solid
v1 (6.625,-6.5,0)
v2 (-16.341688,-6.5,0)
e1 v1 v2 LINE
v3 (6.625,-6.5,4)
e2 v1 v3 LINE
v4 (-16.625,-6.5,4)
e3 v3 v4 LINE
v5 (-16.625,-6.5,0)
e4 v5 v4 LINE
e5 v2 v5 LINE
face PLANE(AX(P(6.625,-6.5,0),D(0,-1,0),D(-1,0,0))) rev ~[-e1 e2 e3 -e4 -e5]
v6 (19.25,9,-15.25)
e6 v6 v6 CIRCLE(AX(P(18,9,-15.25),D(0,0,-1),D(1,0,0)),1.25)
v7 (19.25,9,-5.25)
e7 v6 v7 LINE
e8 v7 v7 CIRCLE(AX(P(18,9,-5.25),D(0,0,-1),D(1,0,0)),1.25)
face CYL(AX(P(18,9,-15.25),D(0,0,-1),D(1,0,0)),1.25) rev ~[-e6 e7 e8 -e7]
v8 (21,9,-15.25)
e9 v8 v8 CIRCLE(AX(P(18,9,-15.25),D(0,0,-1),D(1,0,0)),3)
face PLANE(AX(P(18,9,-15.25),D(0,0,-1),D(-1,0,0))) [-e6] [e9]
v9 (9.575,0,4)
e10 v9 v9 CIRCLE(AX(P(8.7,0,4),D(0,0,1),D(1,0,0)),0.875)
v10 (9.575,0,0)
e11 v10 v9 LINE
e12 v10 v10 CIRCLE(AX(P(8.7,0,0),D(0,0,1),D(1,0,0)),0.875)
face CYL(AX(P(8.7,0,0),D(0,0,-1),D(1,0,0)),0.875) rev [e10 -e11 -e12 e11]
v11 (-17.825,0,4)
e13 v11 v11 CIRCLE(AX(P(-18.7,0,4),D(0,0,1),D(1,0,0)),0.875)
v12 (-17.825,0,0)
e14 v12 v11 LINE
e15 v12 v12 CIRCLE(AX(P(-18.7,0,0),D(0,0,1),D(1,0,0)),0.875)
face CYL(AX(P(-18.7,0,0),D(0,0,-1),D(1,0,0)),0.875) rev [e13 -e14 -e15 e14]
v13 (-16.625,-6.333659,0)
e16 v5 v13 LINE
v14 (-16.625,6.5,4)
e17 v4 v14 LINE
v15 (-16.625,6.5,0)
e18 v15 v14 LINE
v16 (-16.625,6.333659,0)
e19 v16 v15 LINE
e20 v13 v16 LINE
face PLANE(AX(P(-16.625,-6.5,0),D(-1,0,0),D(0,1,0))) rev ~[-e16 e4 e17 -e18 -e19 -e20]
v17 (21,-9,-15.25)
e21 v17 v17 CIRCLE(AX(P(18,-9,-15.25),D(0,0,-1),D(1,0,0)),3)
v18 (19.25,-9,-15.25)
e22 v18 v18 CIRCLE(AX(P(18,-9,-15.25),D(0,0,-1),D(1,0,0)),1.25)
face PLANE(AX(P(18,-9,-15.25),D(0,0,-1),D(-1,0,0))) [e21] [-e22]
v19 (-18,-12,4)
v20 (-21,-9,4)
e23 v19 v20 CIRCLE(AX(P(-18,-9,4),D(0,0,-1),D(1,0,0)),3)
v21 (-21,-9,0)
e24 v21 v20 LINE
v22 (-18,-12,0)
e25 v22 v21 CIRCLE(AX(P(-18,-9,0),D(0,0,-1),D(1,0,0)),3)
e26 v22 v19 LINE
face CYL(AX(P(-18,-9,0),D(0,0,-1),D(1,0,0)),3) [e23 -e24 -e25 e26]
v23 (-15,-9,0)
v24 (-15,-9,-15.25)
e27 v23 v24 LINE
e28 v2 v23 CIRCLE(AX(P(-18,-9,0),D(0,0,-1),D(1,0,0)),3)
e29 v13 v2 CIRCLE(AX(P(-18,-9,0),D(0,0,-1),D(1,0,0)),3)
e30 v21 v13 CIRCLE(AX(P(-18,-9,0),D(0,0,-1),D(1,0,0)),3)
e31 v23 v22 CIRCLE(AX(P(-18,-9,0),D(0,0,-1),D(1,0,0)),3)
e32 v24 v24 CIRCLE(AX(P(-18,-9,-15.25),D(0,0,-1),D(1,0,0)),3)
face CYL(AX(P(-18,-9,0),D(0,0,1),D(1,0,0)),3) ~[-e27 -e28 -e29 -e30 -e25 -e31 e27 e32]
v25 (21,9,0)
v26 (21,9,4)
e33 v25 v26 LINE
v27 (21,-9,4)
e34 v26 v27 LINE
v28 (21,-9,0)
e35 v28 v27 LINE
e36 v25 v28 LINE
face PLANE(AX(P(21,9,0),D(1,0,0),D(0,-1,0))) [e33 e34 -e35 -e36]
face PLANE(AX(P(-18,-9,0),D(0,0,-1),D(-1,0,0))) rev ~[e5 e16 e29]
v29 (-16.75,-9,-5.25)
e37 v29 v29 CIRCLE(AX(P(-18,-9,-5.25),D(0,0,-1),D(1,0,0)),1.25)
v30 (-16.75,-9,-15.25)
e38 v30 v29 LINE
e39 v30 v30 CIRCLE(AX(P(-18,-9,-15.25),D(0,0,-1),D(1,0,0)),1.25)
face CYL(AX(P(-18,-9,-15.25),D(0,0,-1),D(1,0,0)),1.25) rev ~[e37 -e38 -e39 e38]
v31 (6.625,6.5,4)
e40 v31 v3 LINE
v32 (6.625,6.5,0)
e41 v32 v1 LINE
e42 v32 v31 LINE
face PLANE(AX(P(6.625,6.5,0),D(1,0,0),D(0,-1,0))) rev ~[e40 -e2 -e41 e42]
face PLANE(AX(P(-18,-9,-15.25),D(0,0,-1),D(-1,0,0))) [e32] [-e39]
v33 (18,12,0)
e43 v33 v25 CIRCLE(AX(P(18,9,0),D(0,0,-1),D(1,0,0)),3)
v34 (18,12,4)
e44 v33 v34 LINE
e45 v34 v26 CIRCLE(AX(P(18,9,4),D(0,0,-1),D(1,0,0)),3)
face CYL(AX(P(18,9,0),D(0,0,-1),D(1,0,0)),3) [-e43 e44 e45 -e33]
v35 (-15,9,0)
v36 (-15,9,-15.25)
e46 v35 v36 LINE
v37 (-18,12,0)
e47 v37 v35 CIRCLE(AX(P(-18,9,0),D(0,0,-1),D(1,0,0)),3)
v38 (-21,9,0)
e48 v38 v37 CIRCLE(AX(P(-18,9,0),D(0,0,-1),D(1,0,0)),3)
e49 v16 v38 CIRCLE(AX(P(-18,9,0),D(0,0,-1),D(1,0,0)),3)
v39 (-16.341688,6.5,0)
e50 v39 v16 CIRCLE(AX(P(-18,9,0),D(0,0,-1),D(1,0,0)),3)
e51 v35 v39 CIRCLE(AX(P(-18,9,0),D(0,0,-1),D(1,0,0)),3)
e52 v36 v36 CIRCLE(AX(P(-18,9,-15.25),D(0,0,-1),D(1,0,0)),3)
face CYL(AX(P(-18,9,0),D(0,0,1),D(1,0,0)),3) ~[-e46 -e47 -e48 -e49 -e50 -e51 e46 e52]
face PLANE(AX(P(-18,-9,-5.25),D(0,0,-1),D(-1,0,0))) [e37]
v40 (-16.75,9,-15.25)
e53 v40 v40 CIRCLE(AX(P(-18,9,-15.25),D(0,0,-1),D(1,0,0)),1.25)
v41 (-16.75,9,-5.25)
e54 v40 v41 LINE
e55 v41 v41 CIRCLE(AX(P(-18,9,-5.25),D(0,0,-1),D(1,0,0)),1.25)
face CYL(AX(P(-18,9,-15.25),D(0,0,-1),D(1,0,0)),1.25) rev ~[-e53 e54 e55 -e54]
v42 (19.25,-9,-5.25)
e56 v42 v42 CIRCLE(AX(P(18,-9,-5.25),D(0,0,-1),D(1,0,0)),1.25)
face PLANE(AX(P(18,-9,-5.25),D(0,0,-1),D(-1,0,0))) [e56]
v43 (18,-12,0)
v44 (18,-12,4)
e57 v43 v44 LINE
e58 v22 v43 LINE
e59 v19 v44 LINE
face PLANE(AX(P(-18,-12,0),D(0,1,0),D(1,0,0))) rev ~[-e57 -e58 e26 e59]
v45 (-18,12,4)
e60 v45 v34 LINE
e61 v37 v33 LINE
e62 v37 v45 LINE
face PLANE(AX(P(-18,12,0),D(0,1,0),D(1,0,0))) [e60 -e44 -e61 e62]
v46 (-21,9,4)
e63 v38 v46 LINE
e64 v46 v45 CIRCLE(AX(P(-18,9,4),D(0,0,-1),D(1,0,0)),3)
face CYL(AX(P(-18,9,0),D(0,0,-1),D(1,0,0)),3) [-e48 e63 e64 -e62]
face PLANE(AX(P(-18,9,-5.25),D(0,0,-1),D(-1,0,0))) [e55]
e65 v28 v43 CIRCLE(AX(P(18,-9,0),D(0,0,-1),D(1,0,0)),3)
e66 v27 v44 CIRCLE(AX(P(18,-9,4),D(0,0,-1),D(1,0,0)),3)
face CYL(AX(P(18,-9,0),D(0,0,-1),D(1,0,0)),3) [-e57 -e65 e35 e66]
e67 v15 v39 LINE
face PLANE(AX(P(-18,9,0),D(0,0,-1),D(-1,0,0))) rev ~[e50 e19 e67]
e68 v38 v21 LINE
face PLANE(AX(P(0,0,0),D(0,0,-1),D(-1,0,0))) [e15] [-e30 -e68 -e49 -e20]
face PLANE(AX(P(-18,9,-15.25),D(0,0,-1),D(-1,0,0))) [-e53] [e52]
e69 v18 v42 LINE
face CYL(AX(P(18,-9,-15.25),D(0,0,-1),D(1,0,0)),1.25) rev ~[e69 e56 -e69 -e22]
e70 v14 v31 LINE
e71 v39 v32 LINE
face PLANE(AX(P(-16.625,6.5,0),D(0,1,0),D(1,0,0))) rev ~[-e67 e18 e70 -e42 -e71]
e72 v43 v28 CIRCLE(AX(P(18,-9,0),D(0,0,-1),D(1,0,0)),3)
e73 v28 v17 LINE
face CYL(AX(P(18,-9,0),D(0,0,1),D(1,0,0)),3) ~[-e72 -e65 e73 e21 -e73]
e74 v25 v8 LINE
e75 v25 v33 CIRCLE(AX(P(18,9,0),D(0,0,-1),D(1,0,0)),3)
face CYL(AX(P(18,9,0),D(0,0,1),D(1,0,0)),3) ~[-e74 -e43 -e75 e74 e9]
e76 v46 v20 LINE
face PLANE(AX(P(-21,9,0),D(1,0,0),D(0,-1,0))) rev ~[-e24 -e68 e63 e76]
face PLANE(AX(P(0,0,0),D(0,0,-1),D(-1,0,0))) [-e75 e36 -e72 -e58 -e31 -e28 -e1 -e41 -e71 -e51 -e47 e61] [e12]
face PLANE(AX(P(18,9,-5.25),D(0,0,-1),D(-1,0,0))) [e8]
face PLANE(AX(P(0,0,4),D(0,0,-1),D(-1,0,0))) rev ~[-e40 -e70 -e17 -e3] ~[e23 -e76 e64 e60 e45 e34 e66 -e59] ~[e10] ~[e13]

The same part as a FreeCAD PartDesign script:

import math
import FreeCAD as App
import Part
import Sketcher

V = App.Vector
Q = App.Units.Quantity


def add_polygon(sketch, points):
    """Adds a closed chain of lines whose ends are joined by coincident constraints."""
    first, n = sketch.GeometryCount, len(points)
    for a, b in zip(points, points[1:] + points[:1]):
        sketch.addGeometry(Part.LineSegment(App.Vector(*a, 0), App.Vector(*b, 0)), False)
    for i in range(n):
        sketch.addConstraint(Sketcher.Constraint("Coincident", first + i, 2, first + (i + 1) % n, 1))

doc = App.newDocument("Part")
params = doc.addObject("Spreadsheet::Sheet", "Params")
for row, (alias, value) in enumerate([
    ("sketch1_radius", "3 mm"),
    ("sketch1_diameter", "1.75 mm"),
    ("sketch1_width", "36 mm"),
    ("sketch1_height", "18 mm"),
    ("sketch1_height2", "13 mm"),
    ("pad1_length", "4 mm"),
    ("sketch2_diameter", "6 mm"),
    ("pad2_length", "15.25 mm"),
    ("sketch3_diameter", "2.5 mm"),
    ("pocket1_length", "10 mm"),
], start=1):
    params.set(f"A{row}", alias)
    params.set(f"B{row}", "=" + value)
    params.setAlias(f"B{row}", alias)

body = doc.addObject("PartDesign::Body", "Body")

sketch1 = doc.addObject("Sketcher::SketchObject", "Sketch")
body.addObject(sketch1)
sketch1.AttachmentSupport = (doc.XY_Plane, [""])
sketch1.MapMode = "FlatFace"
sketch1.addGeometry(Part.LineSegment(V(18, 12, 0), V(-18, 12, 0)), False)
sketch1.addGeometry(Part.ArcOfCircle(Part.Circle(V(-18, 9, 0), V(0, 0, 1), 3), math.radians(90), math.radians(180)), False)
sketch1.addGeometry(Part.LineSegment(V(-21, 9, 0), V(-21, -9, 0)), False)
sketch1.addGeometry(Part.ArcOfCircle(Part.Circle(V(-18, -9, 0), V(0, 0, 1), 3), math.radians(180), math.radians(270)), False)
sketch1.addGeometry(Part.LineSegment(V(-18, -12, 0), V(18, -12, 0)), False)
sketch1.addGeometry(Part.ArcOfCircle(Part.Circle(V(18, -9, 0), V(0, 0, 1), 3), math.radians(-90), math.radians(0)), False)
sketch1.addGeometry(Part.LineSegment(V(21, -9, 0), V(21, 9, 0)), False)
sketch1.addGeometry(Part.ArcOfCircle(Part.Circle(V(18, 9, 0), V(0, 0, 1), 3), math.radians(0), math.radians(90)), False)
sketch1.addGeometry(Part.Circle(V(-18.7, 0, 0), V(0, 0, 1), 0.9), False)
add_polygon(sketch1, [(6.6, 6.5), (6.6, -6.5), (-16.6, -6.5), (-16.6, 6.5)])
sketch1.addGeometry(Part.Circle(V(8.7, 0, 0), V(0, 0, 1), 0.9), False)
sketch1.addConstraint([
    Sketcher.Constraint("Tangent", 0, 2, 1, 1),
    Sketcher.Constraint("Tangent", 1, 2, 2, 1),
    Sketcher.Constraint("Tangent", 2, 2, 3, 1),
    Sketcher.Constraint("Tangent", 3, 2, 4, 1),
    Sketcher.Constraint("Tangent", 4, 2, 5, 1),
    Sketcher.Constraint("Tangent", 5, 2, 6, 1),
    Sketcher.Constraint("Tangent", 6, 2, 7, 1),
    Sketcher.Constraint("Tangent", 7, 2, 0, 1),
    Sketcher.Constraint("Horizontal", 0),
    Sketcher.Constraint("Vertical", 2),
    Sketcher.Constraint("Horizontal", 4),
    Sketcher.Constraint("Vertical", 6),
    Sketcher.Constraint("Vertical", 9),
    Sketcher.Constraint("Horizontal", 10),
    Sketcher.Constraint("Vertical", 11),
    Sketcher.Constraint("Horizontal", 12),
    Sketcher.Constraint("Equal", 1, 3),
    Sketcher.Constraint("Equal", 3, 5),
    Sketcher.Constraint("Equal", 5, 7),
    Sketcher.Constraint("Equal", 8, 13),
    Sketcher.Constraint("Symmetric", 1, 3, 5, 3, -1, 1),
    Sketcher.Constraint("PointOnObject", 8, 3, -1),
    Sketcher.Constraint("PointOnObject", 13, 3, -1),
    Sketcher.Constraint("Radius", 1, Q("3 mm")),
    Sketcher.Constraint("Diameter", 8, Q("1.75 mm")),
    Sketcher.Constraint("DistanceX", 0, 2, 0, 1, Q("36 mm")),
    Sketcher.Constraint("DistanceY", 2, 2, 2, 1, Q("18 mm")),
    Sketcher.Constraint("DistanceY", 9, 2, 9, 1, Q("13 mm")),
    Sketcher.Constraint("DistanceX", 10, 2, 10, 1, Q("23.25 mm")),
    Sketcher.Constraint("DistanceX", 8, 3, -1, 1, Q("18.7 mm")),
    Sketcher.Constraint("DistanceX", -1, 1, 13, 3, Q("8.7 mm")),
    Sketcher.Constraint("DistanceY", 9, 2, -1, 1, Q("6.5 mm")),
    Sketcher.Constraint("DistanceX", -1, 1, 9, 2, Q("6.625 mm")),
])
sketch1.setExpression("Constraints[27]", "Params.sketch1_radius")
sketch1.setExpression("Constraints[28]", "Params.sketch1_diameter")
sketch1.setExpression("Constraints[29]", "Params.sketch1_width")
sketch1.setExpression("Constraints[30]", "Params.sketch1_height")
sketch1.setExpression("Constraints[31]", "Params.sketch1_height2")
pad1 = doc.addObject("PartDesign::Pad", "Pad")
body.addObject(pad1)
pad1.Profile = sketch1
pad1.setExpression("Length", "Params.pad1_length")

sketch2 = doc.addObject("Sketcher::SketchObject", "Sketch001")
body.addObject(sketch2)
sketch2.AttachmentSupport = (doc.XY_Plane, [""])
sketch2.MapMode = "FlatFace"
sketch2.addGeometry([
    Part.Circle(V(-18, -9, 0), V(0, 0, 1), 3),
    Part.Circle(V(18, -9, 0), V(0, 0, 1), 3),
    Part.Circle(V(-18, 9, 0), V(0, 0, 1), 3),
    Part.Circle(V(18, 9, 0), V(0, 0, 1), 3),
], False)
sketch2.addConstraint([
    Sketcher.Constraint("Equal", 0, 1),
    Sketcher.Constraint("Equal", 1, 2),
    Sketcher.Constraint("Equal", 2, 3),
    Sketcher.Constraint("Symmetric", 1, 3, 2, 3, -1, 1),
    Sketcher.Constraint("Symmetric", 0, 3, 3, 3, -1, 1),
    Sketcher.Constraint("Symmetric", 0, 3, 1, 3, -2),
    Sketcher.Constraint("Diameter", 0, Q("6 mm")),
    Sketcher.Constraint("DistanceX", 0, 3, -1, 1, Q("18 mm")),
    Sketcher.Constraint("DistanceY", 0, 3, -1, 1, Q("9 mm")),
])
sketch2.setExpression("Constraints[6]", "Params.sketch2_diameter")
pad2 = doc.addObject("PartDesign::Pad", "Pad001")
body.addObject(pad2)
pad2.Profile = sketch2
pad2.setExpression("Length", "Params.pad2_length")
pad2.Reversed = True

sketch3 = doc.addObject("Sketcher::SketchObject", "Sketch002")
body.addObject(sketch3)
sketch3.AttachmentSupport = (doc.XY_Plane, [""])
sketch3.MapMode = "FlatFace"
sketch3.AttachmentOffset = App.Placement(V(0, 0, -15.25), App.Rotation())
sketch3.addGeometry([
    Part.Circle(V(18, -9, 0), V(0, 0, 1), 1.2),
    Part.Circle(V(18, 9, 0), V(0, 0, 1), 1.2),
    Part.Circle(V(-18, 9, 0), V(0, 0, 1), 1.2),
    Part.Circle(V(-18, -9, 0), V(0, 0, 1), 1.2),
], False)
sketch3.addConstraint([
    Sketcher.Constraint("Equal", 0, 1),
    Sketcher.Constraint("Equal", 1, 2),
    Sketcher.Constraint("Equal", 2, 3),
    Sketcher.Constraint("Symmetric", 0, 3, 2, 3, -1, 1),
    Sketcher.Constraint("Symmetric", 1, 3, 3, 3, -1, 1),
    Sketcher.Constraint("Symmetric", 1, 3, 2, 3, -2),
    Sketcher.Constraint("Diameter", 0, Q("2.5 mm")),
    Sketcher.Constraint("DistanceX", -1, 1, 0, 3, Q("18 mm")),
    Sketcher.Constraint("DistanceY", 0, 3, -1, 1, Q("9 mm")),
])
sketch3.setExpression("Constraints[6]", "Params.sketch3_diameter")
pocket1 = doc.addObject("PartDesign::Pocket", "Pocket")
body.addObject(pocket1)
pocket1.Profile = sketch3
pocket1.setExpression("Length", "Params.pocket1_length")
pocket1.Reversed = True

doc.recompute()
